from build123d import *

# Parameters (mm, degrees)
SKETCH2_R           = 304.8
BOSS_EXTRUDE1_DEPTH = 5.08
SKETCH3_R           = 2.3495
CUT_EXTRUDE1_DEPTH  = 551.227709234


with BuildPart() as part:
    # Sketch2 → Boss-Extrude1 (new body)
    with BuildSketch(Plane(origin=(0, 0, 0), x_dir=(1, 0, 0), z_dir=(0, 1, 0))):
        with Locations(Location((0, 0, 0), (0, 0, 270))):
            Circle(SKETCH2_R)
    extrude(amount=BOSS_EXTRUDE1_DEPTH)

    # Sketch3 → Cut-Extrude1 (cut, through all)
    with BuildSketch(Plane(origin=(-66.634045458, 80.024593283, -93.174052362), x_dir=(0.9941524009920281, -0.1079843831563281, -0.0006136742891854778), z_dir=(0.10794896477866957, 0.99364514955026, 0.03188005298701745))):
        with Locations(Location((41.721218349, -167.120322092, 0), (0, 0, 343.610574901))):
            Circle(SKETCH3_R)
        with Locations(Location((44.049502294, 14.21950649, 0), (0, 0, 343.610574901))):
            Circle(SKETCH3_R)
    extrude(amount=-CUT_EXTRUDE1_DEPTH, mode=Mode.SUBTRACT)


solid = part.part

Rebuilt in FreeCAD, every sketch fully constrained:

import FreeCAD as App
import Part
import Sketcher
from FreeCAD import Vector
Q = App.Units.Quantity

doc = App.newDocument("Part")
body = doc.addObject("PartDesign::Body", "Body")

# Sketch on XZ plane
sketch1 = body.newObject("Sketcher::SketchObject", "Sketch")
sketch1.AttachmentSupport = (doc.getObject("XZ_Plane"), [""])
sketch1.MapMode = "FlatFace"
sketch1.addGeometry(Part.Circle(Vector(0, 0, 0), Vector(0, 0, 1), 304.8), False)
sketch1.addConstraint(Sketcher.Constraint("Coincident", 0, 3, -1, 1))
sketch1.addConstraint(Sketcher.Constraint("Diameter", 0, Q("24 in")))
pad1 = body.newObject("PartDesign::Pad", "Pad")
pad1.Profile = sketch1
pad1.Length = Q("0.2 in")
pad1.Reversed = True

# Sketch on an angled plane
sketch2 = body.newObject("Sketcher::SketchObject", "Sketch001")
sketch2.Placement = App.Placement(Vector(-66.634045, 80.024593, -93.174052), App.Rotation(Vector(0.994152401, -0.107984383, -0.000613674), Vector(0.002832774, 0.031759877, -0.999491514), Vector(0.107948965, 0.99364515, 0.031880053), "ZXY"))
sketch2.addGeometry(Part.Circle(Vector(41.721218, -167.120322, 0), Vector(0, 0, 1), 2.3495), False)
sketch2.addGeometry(Part.Circle(Vector(44.049502, 14.219507, 0), Vector(0, 0, 1), 2.3495), False)
sketch2.addConstraint(Sketcher.Constraint("Equal", 0, 1))
sketch2.addConstraint(Sketcher.Constraint("Diameter", 0, Q("0.185 in")))
sketch2.addConstraint(Sketcher.Constraint("DistanceX", -1, 1, 0, 3, 41.721218))
sketch2.addConstraint(Sketcher.Constraint("DistanceY", 0, 3, 1, 3, 181.339829))
sketch2.addConstraint(Sketcher.Constraint("DistanceY", 0, 3, -1, 1, 167.120322))
sketch2.addConstraint(Sketcher.Constraint("DistanceX", -1, 1, 1, 3, 44.049502))
pocket1 = body.newObject("PartDesign::Pocket", "Pocket")
pocket1.Profile = sketch2
pocket1.Type = "ThroughAll"

doc.recompute()
